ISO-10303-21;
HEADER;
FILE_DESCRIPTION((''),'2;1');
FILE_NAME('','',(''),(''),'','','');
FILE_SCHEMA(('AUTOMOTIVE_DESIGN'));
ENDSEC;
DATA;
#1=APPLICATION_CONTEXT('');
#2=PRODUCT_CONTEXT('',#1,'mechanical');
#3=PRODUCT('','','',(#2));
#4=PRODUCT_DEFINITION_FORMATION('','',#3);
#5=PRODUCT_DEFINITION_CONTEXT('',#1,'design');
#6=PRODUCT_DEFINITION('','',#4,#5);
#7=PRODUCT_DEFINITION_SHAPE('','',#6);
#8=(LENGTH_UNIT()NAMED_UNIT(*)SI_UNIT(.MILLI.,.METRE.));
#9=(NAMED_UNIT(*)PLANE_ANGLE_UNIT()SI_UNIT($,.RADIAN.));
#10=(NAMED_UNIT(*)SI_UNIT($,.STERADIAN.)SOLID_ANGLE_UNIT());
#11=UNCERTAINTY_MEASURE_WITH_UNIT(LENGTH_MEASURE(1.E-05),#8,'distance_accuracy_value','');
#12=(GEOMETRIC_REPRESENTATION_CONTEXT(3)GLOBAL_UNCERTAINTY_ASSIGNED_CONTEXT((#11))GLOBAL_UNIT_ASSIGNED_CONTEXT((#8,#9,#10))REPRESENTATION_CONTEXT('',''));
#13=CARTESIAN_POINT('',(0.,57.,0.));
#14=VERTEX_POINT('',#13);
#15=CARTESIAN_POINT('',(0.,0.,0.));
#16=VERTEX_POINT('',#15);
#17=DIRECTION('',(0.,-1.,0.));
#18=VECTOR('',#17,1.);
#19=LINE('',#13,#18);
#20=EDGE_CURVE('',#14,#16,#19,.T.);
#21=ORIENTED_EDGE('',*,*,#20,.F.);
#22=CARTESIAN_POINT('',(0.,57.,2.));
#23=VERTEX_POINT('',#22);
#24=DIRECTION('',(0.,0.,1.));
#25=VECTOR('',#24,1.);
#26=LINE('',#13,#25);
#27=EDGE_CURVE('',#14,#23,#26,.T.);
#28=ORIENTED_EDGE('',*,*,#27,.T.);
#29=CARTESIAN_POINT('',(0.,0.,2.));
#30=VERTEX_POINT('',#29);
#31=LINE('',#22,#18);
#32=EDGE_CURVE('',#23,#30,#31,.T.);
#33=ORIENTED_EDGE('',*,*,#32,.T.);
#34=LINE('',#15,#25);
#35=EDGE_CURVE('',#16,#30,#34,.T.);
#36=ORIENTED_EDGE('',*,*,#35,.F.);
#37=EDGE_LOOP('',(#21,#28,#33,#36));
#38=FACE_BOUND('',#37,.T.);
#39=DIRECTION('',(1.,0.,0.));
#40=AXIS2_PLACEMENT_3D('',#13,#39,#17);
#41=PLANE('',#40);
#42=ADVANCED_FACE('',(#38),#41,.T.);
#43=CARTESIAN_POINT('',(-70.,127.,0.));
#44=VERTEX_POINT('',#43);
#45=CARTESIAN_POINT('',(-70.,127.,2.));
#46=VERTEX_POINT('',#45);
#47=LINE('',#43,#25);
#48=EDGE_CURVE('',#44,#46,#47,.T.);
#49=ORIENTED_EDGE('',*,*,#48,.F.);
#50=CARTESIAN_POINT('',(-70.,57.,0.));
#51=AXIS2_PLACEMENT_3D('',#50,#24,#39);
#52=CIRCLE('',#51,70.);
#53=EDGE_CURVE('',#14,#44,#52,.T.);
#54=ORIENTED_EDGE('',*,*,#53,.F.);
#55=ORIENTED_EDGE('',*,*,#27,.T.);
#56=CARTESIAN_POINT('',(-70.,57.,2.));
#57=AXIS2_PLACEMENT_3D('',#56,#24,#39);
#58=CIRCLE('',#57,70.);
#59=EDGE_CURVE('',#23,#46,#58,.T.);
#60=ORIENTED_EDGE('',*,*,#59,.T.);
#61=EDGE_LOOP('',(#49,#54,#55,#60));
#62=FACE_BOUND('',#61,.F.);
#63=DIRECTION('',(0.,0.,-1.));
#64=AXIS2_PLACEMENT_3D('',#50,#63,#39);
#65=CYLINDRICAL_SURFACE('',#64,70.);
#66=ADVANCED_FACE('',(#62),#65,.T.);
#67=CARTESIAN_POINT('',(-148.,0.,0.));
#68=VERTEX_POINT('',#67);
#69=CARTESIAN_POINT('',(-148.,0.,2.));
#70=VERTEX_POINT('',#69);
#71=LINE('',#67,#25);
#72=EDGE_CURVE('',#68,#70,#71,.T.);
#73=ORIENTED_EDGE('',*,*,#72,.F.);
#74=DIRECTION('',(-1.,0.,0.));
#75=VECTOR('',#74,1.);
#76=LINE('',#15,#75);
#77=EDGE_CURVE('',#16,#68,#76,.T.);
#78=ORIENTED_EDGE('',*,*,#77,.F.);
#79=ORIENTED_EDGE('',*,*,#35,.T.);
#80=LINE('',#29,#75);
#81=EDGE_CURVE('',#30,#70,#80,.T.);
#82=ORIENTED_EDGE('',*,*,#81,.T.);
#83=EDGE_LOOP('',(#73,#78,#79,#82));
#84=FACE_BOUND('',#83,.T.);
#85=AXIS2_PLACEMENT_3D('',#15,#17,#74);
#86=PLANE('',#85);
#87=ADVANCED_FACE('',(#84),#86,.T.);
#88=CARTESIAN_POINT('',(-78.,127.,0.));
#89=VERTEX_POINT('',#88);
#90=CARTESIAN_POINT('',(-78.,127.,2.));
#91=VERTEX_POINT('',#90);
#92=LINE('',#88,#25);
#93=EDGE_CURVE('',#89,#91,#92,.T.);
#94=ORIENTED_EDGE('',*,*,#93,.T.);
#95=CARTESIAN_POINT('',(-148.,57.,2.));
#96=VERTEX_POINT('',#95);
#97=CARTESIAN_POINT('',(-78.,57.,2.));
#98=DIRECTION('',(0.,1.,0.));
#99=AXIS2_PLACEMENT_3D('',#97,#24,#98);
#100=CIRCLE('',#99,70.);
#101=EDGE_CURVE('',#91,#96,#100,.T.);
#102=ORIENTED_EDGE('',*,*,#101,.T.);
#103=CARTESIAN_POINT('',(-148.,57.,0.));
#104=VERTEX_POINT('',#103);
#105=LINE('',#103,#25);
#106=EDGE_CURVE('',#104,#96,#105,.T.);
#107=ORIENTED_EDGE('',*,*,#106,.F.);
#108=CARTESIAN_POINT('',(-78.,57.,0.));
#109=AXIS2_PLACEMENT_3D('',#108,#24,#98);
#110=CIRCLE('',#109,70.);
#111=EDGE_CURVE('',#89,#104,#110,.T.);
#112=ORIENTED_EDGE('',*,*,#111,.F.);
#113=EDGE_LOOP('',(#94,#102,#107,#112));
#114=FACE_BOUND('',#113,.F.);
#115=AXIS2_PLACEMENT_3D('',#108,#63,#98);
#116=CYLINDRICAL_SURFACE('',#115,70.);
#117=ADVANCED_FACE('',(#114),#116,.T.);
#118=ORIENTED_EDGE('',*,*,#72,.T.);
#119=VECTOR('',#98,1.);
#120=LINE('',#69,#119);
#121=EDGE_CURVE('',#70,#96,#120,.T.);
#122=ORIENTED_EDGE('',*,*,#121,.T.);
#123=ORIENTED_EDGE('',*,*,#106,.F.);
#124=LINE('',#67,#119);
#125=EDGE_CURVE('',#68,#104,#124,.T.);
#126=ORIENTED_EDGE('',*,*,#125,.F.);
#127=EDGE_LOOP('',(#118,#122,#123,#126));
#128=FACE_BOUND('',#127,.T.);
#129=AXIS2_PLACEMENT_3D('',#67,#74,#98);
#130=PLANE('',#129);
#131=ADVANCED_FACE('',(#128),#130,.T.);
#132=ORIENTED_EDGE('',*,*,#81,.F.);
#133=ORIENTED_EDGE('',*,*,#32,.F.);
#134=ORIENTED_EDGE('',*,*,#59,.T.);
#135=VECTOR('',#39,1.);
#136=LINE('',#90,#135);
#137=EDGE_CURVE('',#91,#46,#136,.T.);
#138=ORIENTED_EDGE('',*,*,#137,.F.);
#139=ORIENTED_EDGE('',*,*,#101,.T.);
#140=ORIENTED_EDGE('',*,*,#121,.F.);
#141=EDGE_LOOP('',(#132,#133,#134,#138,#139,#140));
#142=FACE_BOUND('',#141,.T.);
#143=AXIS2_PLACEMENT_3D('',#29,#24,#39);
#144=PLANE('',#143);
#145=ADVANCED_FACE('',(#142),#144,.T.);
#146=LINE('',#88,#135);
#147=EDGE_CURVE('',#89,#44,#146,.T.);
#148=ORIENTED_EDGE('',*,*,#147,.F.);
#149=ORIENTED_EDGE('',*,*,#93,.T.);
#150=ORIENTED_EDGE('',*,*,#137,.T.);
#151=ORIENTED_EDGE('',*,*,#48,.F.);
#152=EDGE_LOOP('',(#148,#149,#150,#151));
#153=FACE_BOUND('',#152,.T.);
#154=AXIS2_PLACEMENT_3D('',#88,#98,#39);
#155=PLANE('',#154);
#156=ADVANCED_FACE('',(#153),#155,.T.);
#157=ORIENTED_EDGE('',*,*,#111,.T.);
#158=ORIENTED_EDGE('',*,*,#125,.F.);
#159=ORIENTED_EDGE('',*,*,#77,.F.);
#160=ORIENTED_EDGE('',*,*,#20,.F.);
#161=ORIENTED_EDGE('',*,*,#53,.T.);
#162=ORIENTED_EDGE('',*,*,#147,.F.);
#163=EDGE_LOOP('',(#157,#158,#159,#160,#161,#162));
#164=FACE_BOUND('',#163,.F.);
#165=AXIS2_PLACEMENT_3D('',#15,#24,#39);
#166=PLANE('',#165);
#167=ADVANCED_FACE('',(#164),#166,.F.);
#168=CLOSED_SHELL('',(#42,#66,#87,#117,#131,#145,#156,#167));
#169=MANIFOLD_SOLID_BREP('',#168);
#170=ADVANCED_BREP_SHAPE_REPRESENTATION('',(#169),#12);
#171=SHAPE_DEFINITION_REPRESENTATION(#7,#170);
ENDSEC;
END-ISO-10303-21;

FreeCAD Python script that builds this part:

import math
import FreeCAD as App
import Part
import Sketcher
from FreeCAD import Vector
Q = App.Units.Quantity

doc = App.newDocument("Part")
body = doc.addObject("PartDesign::Body", "Body")

# Sketch on XY plane
sketch1 = body.newObject("Sketcher::SketchObject", "Sketch")
sketch1.AttachmentSupport = (doc.getObject("XY_Plane"), [""])
sketch1.MapMode = "FlatFace"
sketch1.addGeometry([
    Part.LineSegment(Vector(-148, 0, 0), Vector(0, 0, 0)),  # 0
    Part.LineSegment(Vector(0, 0, 0), Vector(0, 57, 0)),  # 1
    Part.ArcOfCircle(Part.Circle(Vector(-70, 57, 0), Vector(0, 0, 1), 70), math.radians(0), math.radians(90)),  # 2
    Part.LineSegment(Vector(-70, 127, 0), Vector(-78, 127, 0)),  # 3
    Part.ArcOfCircle(Part.Circle(Vector(-78, 57, 0), Vector(0, 0, 1), 70), math.radians(90), math.radians(180)),  # 4
    Part.LineSegment(Vector(-148, 57, 0), Vector(-148, 0, 0)),  # 5
], False)
sketch1.addConstraint([
    Sketcher.Constraint("Coincident", 0, 2, 1, 1),
    Sketcher.Constraint("Tangent", 1, 2, 2, 1),
    Sketcher.Constraint("Tangent", 2, 2, 3, 1),
    Sketcher.Constraint("Tangent", 3, 2, 4, 1),
    Sketcher.Constraint("Tangent", 4, 2, 5, 1),
    Sketcher.Constraint("Coincident", 5, 2, 0, 1),
    Sketcher.Constraint("Horizontal", 0),
    Sketcher.Constraint("Vertical", 1),
    Sketcher.Constraint("Horizontal", 3),
    Sketcher.Constraint("Vertical", 5),
    Sketcher.Constraint("Coincident", 0, 2, -1, 1),
    Sketcher.Constraint("Equal", 2, 4),
    Sketcher.Constraint("Radius", 2, Q("70 mm")),
    Sketcher.Constraint("DistanceX", 0, 1, 0, 2, Q("148 mm")),
    Sketcher.Constraint("DistanceY", -1, 1, 2, 2, Q("127 mm")),
])
pad1 = body.newObject("PartDesign::Pad", "Pad")
pad1.Profile = sketch1
pad1.Length = 2

doc.recompute()
